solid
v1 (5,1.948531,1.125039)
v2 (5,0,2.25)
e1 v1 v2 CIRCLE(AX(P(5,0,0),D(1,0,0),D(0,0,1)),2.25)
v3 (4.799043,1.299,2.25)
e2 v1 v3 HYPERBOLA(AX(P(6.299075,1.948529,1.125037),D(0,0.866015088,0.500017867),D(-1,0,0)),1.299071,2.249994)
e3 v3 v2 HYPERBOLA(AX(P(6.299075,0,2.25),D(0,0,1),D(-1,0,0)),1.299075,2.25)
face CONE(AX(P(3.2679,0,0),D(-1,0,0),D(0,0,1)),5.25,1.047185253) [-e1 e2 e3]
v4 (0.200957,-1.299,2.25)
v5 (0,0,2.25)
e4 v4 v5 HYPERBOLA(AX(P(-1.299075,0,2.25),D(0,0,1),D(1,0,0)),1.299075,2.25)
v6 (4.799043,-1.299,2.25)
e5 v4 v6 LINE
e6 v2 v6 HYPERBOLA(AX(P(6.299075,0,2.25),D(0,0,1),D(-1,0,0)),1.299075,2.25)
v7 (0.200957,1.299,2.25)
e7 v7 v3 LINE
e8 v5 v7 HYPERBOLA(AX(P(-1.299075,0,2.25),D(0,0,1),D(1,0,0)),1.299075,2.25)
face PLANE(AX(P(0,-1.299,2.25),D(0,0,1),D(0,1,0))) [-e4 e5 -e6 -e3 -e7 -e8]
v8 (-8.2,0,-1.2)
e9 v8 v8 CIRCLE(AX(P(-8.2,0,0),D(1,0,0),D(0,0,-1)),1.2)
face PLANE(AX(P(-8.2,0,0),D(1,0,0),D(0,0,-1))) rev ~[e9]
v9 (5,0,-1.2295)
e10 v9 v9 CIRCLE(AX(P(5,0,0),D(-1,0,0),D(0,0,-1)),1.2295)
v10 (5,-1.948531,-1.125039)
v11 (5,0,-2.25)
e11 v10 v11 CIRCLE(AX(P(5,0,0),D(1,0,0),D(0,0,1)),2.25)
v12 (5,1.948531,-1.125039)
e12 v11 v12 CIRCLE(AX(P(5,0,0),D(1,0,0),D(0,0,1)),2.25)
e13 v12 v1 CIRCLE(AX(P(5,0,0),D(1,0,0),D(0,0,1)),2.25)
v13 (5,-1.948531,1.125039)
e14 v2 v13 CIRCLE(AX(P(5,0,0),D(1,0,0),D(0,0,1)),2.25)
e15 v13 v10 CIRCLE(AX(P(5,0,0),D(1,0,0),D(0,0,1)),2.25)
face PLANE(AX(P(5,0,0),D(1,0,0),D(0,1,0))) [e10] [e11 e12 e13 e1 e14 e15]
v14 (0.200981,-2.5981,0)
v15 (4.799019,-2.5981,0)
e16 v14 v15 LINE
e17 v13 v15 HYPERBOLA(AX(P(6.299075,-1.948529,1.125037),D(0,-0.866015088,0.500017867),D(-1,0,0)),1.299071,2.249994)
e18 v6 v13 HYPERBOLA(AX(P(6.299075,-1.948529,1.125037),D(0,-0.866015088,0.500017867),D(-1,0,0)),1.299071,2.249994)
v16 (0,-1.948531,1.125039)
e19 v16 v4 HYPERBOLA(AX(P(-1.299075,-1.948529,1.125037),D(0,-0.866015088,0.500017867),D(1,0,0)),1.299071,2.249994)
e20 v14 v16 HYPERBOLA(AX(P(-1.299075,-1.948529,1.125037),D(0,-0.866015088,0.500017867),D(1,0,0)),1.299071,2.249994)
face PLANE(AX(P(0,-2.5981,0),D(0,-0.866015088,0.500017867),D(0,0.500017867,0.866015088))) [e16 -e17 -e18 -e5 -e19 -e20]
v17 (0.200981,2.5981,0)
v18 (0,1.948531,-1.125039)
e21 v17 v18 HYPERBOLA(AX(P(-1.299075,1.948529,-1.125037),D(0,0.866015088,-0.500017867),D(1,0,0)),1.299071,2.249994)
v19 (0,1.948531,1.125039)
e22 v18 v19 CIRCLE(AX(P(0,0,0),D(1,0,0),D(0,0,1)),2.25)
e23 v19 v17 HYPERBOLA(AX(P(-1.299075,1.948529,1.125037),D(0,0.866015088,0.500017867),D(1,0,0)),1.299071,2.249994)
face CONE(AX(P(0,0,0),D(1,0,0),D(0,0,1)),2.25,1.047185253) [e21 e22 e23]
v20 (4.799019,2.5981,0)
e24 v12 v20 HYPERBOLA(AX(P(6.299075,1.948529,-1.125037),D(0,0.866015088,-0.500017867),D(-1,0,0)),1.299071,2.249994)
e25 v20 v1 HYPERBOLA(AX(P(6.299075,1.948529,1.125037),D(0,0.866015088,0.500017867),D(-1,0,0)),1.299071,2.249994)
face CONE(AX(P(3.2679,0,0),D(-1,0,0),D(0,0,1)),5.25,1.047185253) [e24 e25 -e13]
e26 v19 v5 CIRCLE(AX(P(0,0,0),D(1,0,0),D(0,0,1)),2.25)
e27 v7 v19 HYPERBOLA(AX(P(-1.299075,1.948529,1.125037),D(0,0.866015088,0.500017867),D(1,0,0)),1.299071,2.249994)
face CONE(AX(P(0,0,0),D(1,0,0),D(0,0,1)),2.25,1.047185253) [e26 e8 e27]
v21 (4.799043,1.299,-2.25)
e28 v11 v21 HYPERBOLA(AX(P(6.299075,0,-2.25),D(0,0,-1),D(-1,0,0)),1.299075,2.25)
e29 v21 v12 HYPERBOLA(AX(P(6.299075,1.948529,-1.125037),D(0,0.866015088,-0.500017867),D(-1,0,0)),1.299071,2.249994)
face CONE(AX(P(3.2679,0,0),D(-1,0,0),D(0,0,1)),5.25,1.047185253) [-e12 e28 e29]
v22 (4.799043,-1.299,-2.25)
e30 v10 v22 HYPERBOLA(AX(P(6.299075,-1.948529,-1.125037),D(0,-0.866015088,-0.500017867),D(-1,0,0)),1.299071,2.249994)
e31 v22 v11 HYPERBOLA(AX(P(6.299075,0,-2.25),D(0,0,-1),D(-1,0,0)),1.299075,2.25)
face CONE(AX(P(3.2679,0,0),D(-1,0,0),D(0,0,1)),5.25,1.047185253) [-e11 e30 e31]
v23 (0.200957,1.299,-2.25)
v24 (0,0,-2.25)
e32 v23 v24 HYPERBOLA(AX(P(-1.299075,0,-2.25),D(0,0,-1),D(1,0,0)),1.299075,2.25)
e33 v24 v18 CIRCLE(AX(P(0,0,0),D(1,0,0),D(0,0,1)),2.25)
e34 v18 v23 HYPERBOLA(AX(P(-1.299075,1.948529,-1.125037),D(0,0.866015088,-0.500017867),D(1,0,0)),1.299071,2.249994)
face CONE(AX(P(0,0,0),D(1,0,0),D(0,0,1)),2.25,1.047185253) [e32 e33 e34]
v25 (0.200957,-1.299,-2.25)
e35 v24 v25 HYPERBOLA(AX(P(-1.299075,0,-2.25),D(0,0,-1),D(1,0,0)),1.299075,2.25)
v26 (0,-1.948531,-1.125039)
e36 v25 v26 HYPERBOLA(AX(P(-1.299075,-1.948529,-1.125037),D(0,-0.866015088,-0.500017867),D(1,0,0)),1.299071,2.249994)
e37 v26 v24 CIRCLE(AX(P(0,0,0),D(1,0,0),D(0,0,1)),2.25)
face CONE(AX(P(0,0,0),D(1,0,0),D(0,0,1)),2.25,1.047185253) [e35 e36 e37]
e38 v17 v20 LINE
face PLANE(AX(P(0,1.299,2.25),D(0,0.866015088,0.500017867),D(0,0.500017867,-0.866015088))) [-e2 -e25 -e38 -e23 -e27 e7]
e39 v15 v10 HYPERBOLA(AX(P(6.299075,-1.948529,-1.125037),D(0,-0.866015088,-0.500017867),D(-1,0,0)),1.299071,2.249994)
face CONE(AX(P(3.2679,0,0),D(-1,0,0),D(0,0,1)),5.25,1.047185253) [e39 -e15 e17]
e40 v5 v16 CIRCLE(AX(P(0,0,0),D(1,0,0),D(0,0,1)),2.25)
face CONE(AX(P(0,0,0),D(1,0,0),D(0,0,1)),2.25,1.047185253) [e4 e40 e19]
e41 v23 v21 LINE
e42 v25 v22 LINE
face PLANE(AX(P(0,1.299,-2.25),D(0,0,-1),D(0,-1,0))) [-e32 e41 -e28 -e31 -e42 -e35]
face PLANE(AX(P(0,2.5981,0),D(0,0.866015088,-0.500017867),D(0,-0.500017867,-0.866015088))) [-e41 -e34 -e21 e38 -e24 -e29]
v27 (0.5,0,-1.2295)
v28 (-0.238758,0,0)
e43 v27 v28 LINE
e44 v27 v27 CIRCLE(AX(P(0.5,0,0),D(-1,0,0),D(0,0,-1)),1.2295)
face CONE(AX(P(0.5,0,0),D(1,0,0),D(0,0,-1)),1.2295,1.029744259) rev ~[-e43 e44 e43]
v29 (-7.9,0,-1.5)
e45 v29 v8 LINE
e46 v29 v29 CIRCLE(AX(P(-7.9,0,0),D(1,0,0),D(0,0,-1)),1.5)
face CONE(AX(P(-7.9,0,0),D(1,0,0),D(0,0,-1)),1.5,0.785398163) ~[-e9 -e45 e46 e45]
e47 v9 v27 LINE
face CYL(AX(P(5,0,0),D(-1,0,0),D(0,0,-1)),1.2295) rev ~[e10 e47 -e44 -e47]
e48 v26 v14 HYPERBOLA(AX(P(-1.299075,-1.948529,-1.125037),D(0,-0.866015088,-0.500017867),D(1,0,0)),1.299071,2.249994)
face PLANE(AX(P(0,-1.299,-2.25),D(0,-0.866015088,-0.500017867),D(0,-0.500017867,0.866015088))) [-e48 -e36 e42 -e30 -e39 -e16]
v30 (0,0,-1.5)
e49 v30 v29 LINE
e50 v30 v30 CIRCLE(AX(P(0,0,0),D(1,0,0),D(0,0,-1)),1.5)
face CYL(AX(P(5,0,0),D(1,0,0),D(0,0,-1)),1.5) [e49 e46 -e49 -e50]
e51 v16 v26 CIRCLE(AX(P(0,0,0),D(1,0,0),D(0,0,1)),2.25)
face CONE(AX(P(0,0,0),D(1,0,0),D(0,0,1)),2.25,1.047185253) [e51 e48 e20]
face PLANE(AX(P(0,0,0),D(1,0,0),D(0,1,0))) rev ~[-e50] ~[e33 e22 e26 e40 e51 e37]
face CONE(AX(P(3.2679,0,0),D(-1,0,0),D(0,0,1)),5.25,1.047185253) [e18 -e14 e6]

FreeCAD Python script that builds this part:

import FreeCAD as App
import Part
import Sketcher
from FreeCAD import Vector
Q = App.Units.Quantity


def edges_at(feature, points):
    """Names of the edges that pass closest to the given points."""
    edges = feature.Shape.Edges
    near = lambda p: min(range(len(edges)), key=lambda i: edges[i].distToShape(Part.Vertex(*p))[0])
    return sorted({f"Edge{near(p) + 1}" for p in points})


def add_polygon(sketch, points):
    """Adds a closed chain of lines whose ends are joined by coincident constraints."""
    first, n = sketch.GeometryCount, len(points)
    for a, b in zip(points, points[1:] + points[:1]):
        sketch.addGeometry(Part.LineSegment(App.Vector(*a, 0), App.Vector(*b, 0)), False)
    for i in range(n):
        sketch.addConstraint(Sketcher.Constraint("Coincident", first + i, 2, first + (i + 1) % n, 1))

doc = App.newDocument("Part")
params = doc.addObject("Spreadsheet::Sheet", "Params")
for row, (alias, value) in enumerate([
    ("pad1_length", "5 mm"),
    ("sketch2_diameter", "3 mm"),
    ("pad2_length", "13.2 mm"),
    ("hole_diameter", "2.459 mm"),
    ("hole_depth", "4.5 mm"),
    ("chamfer_size", "0.3 mm"),
    ("sketch4_height", "3 mm"),
    ("groove_angle", "360 deg"),
], start=1):
    params.set(f"A{row}", alias)
    params.set(f"B{row}", "=" + value)
    params.setAlias(f"B{row}", alias)

body = doc.addObject("PartDesign::Body", "Body")

sketch1 = body.newObject("Sketcher::SketchObject", "Sketch")
sketch1.AttachmentSupport = (doc.getObject("YZ_Plane"), [""])
sketch1.MapMode = "FlatFace"
add_polygon(sketch1, [(1.299, -2.25), (2.5981, 0), (1.299, 2.25), (-1.299, 2.25), (-2.5981, 0), (-1.299, -2.25)])
sketch1.addConstraint([
    Sketcher.Constraint("Horizontal", 2),
    Sketcher.Constraint("Horizontal", 5),
    Sketcher.Constraint("Symmetric", 0, 2, 3, 2, -1, 1),
    Sketcher.Constraint("Symmetric", 1, 2, 4, 2, -1, 1),
    Sketcher.Constraint("PointOnObject", 0, 2, -1),
    Sketcher.Constraint("Parallel", 0, 3),
    Sketcher.Constraint("Vertical", 2, 2, 4, 2),
    Sketcher.Constraint("DistanceY", 4, 2, 2, 2, Q("4.5 mm")),
    Sketcher.Constraint("Angle", 0, Q("59.9988 deg")),
    Sketcher.Constraint("DistanceX", 2, 2, 2, 1, Q("2.598 mm")),
])
pad1 = body.newObject("PartDesign::Pad", "Pad")
pad1.Profile = sketch1
pad1.setExpression("Length", "Params.pad1_length")

sketch2 = body.newObject("Sketcher::SketchObject", "Sketch001")
sketch2.AttachmentSupport = (doc.getObject("YZ_Plane"), [""])
sketch2.MapMode = "FlatFace"
sketch2.AttachmentOffset = App.Placement(Vector(0, 0, 5), App.Rotation())
sketch2.addGeometry(Part.Circle(Vector(0, 0, 0), Vector(0, 0, 1), 1.5), False)
sketch2.addConstraint([
    Sketcher.Constraint("Coincident", 0, 3, -1, 1),
    Sketcher.Constraint("Diameter", 0, Q("3 mm")),
])
sketch2.setExpression("Constraints[1]", "Params.sketch2_diameter")
pad2 = body.newObject("PartDesign::Pad", "Pad001")
pad2.Profile = sketch2
pad2.setExpression("Length", "Params.pad2_length")
pad2.Reversed = True

sketch3 = body.newObject("Sketcher::SketchObject", "Sketch002")
sketch3.AttachmentSupport = (doc.getObject("YZ_Plane"), [""])
sketch3.MapMode = "FlatFace"
sketch3.AttachmentOffset = App.Placement(Vector(0, 0, 5), App.Rotation())
sketch3.addGeometry(Part.Circle(Vector(0, 0, 0), Vector(0, 0, 1), 1.2295), False)
sketch3.addConstraint([
    Sketcher.Constraint("Coincident", 0, 3, -1, 1),
    Sketcher.Constraint("Diameter", 0, Q("2.459 mm")),
])
doc.recompute()
hole = body.newObject("PartDesign::Hole", "Hole")
hole.Profile = sketch3
hole.ThreadType = "None"
hole.setExpression("Diameter", "Params.hole_diameter")
hole.DepthType = "Dimension"
hole.setExpression("Depth", "Params.hole_depth")
hole.DrillPoint = "Angled"
hole.DrillPointAngle = 118
doc.recompute()

chamfer = body.newObject("PartDesign::Chamfer", "Chamfer")
chamfer.Base = (hole, edges_at(hole, [(-8.2, 0, 1.5)]))
chamfer.setExpression("Size", "Params.chamfer_size")

sketch4 = body.newObject("Sketcher::SketchObject", "Sketch003")
sketch4.AttachmentSupport = (doc.getObject("XZ_Plane"), [""])
sketch4.MapMode = "FlatFace"
add_polygon(sketch4, [(1.7321, 5.25), (0, 2.25), (0, 5.25)])
add_polygon(sketch4, [(5, 2.25), (3.2679, 5.25), (5, 5.25)])
sketch4.addConstraint([
    Sketcher.Constraint("Vertical", 1),
    Sketcher.Constraint("Horizontal", 2),
    Sketcher.Constraint("Horizontal", 4),
    Sketcher.Constraint("Vertical", 5),
    Sketcher.Constraint("PointOnObject", 0, 2, -2),
    Sketcher.Constraint("Horizontal", 2, 2, 3, 2),
    Sketcher.Constraint("Horizontal", 0, 2, 5, 2),
    Sketcher.Constraint("Equal", 2, 4),
    Sketcher.Constraint("DistanceY", 1, 1, 1, 2, Q("3 mm")),
    Sketcher.Constraint("Angle", 0, Q("-120.0007 deg")),
    Sketcher.Constraint("DistanceX", -1, 1, 4, 2, Q("5 mm")),
    Sketcher.Constraint("DistanceY", -1, 1, 0, 2, Q("2.25 mm")),
])
sketch4.setExpression("Constraints[14]", "Params.sketch4_height")
groove = body.newObject("PartDesign::Groove", "Groove")
groove.Profile = sketch4
groove.ReferenceAxis = (sketch4, ["H_Axis"])
groove.setExpression("Angle", "Params.groove_angle")

doc.recompute()
